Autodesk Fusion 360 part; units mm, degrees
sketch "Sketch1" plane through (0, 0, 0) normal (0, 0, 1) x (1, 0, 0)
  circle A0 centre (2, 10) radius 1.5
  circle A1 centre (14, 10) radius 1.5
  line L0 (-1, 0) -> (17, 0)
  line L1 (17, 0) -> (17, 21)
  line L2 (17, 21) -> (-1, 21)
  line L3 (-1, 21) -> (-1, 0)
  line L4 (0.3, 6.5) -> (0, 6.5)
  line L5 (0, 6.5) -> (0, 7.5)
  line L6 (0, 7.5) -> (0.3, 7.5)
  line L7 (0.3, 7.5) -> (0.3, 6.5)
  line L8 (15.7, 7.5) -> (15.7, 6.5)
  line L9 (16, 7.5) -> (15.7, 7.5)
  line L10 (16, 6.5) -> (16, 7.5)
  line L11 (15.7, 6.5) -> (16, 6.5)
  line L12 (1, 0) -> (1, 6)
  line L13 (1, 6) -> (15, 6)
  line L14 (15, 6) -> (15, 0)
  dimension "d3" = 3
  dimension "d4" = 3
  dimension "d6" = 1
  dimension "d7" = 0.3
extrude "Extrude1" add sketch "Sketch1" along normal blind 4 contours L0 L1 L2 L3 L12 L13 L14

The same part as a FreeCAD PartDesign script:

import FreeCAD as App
import Part
import Sketcher

doc = App.newDocument("Part")
params = doc.addObject("Spreadsheet::Sheet", "Params")
for row, (alias, value) in enumerate([
    ("sketch1_diameter", "3 mm"),
    ("sketch1_height", "1 mm"),
    ("sketch1_width", "0.3 mm"),
    ("sketch1_width2", "14 mm"),
    ("sketch1_height2", "21 mm"),
    ("pad1_length", "4 mm"),
], start=1):
    params.set(f"A{row}", alias)
    params.set(f"B{row}", "=" + value)
    params.setAlias(f"B{row}", alias)

body = doc.addObject("PartDesign::Body", "Body")

sketch1 = body.newObject("Sketcher::SketchObject", "Sketch")
sketch1.AttachmentSupport = (doc.getObject("XY_Plane"), [""])
sketch1.MapMode = "FlatFace"
sketch1.addGeometry([
    Part.LineSegment(App.Vector(-1, 21, 0), App.Vector(-1, 0, 0)),
    Part.LineSegment(App.Vector(-1, 0, 0), App.Vector(1, 0, 0)),
    Part.LineSegment(App.Vector(1, 0, 0), App.Vector(1, 6, 0)),
    Part.LineSegment(App.Vector(1, 6, 0), App.Vector(15, 6, 0)),
    Part.LineSegment(App.Vector(15, 6, 0), App.Vector(15, 0, 0)),
    Part.LineSegment(App.Vector(15, 0, 0), App.Vector(17, 0, 0)),
    Part.LineSegment(App.Vector(17, 0, 0), App.Vector(17, 21, 0)),
    Part.LineSegment(App.Vector(17, 21, 0), App.Vector(-1, 21, 0)),
    Part.LineSegment(App.Vector(0.3, 7.5, 0), App.Vector(0.3, 6.5, 0)),
    Part.LineSegment(App.Vector(0.3, 6.5, 0), App.Vector(0, 6.5, 0)),
    Part.LineSegment(App.Vector(0, 6.5, 0), App.Vector(0, 7.5, 0)),
    Part.LineSegment(App.Vector(0, 7.5, 0), App.Vector(0.3, 7.5, 0)),
    Part.Circle(App.Vector(2, 10, 0), App.Vector(0, 0, 1), 1.5),
    Part.LineSegment(App.Vector(15.7, 6.5, 0), App.Vector(15.7, 7.5, 0)),
    Part.LineSegment(App.Vector(15.7, 7.5, 0), App.Vector(16, 7.5, 0)),
    Part.LineSegment(App.Vector(16, 7.5, 0), App.Vector(16, 6.5, 0)),
    Part.LineSegment(App.Vector(16, 6.5, 0), App.Vector(15.7, 6.5, 0)),
    Part.Circle(App.Vector(14, 10, 0), App.Vector(0, 0, 1), 1.5),
], False)
sketch1.addConstraint([
    Sketcher.Constraint("Coincident", 0, 2, 1, 1),
    Sketcher.Constraint("Coincident", 1, 2, 2, 1),
    Sketcher.Constraint("Coincident", 2, 2, 3, 1),
    Sketcher.Constraint("Coincident", 3, 2, 4, 1),
    Sketcher.Constraint("Coincident", 4, 2, 5, 1),
    Sketcher.Constraint("Coincident", 5, 2, 6, 1),
    Sketcher.Constraint("Coincident", 6, 2, 7, 1),
    Sketcher.Constraint("Coincident", 7, 2, 0, 1),
    Sketcher.Constraint("Coincident", 8, 2, 9, 1),
    Sketcher.Constraint("Coincident", 9, 2, 10, 1),
    Sketcher.Constraint("Coincident", 10, 2, 11, 1),
    Sketcher.Constraint("Coincident", 11, 2, 8, 1),
    Sketcher.Constraint("Coincident", 13, 2, 14, 1),
    Sketcher.Constraint("Coincident", 14, 2, 15, 1),
    Sketcher.Constraint("Coincident", 15, 2, 16, 1),
    Sketcher.Constraint("Coincident", 16, 2, 13, 1),
    Sketcher.Constraint("Vertical", 0),
    Sketcher.Constraint("Horizontal", 1),
    Sketcher.Constraint("Vertical", 2),
    Sketcher.Constraint("Horizontal", 3),
    Sketcher.Constraint("Vertical", 4),
    Sketcher.Constraint("Horizontal", 5),
    Sketcher.Constraint("Vertical", 6),
    Sketcher.Constraint("Horizontal", 7),
    Sketcher.Constraint("Vertical", 8),
    Sketcher.Constraint("Horizontal", 9),
    Sketcher.Constraint("Vertical", 10),
    Sketcher.Constraint("Horizontal", 11),
    Sketcher.Constraint("Vertical", 13),
    Sketcher.Constraint("Horizontal", 14),
    Sketcher.Constraint("Vertical", 15),
    Sketcher.Constraint("Horizontal", 16),
    Sketcher.Constraint("Equal", 12, 17),
    Sketcher.Constraint("Symmetric", 0, 2, 1, 2, -1, 1),
    Sketcher.Constraint("PointOnObject", 4, 2, -1),
    Sketcher.Constraint("PointOnObject", 9, 2, -2),
    Sketcher.Constraint("Horizontal", 12, 3, 17, 3),
    Sketcher.Constraint("Horizontal", 11, 2, 13, 2),
    Sketcher.Constraint("Horizontal", 9, 2, 15, 2),
    Sketcher.Constraint("Equal", 1, 5),
    Sketcher.Constraint("Equal", 11, 14),
    Sketcher.Constraint("Diameter", 12, 3.0),
    Sketcher.Constraint("DistanceY", 8, 2, 8, 1, 1.0),
    Sketcher.Constraint("DistanceX", 9, 2, 9, 1, 0.3),
    Sketcher.Constraint("DistanceX", 0, 2, -1, 1, 1.0),
    Sketcher.Constraint("DistanceX", 0, 2, 12, 3, 3.0),
    Sketcher.Constraint("DistanceX", 17, 3, 3, 2, 1.0),
    Sketcher.Constraint("DistanceX", 3, 2, 14, 2, 1.0),
    Sketcher.Constraint("DistanceX", 3, 1, 3, 2, 14.0),
    Sketcher.Constraint("DistanceY", 0, 2, 0, 1, 21.0),
    Sketcher.Constraint("DistanceY", 2, 1, 2, 2, 6.0),
    Sketcher.Constraint("DistanceY", -1, 1, 12, 3, 10.0),
    Sketcher.Constraint("DistanceY", -1, 1, 8, 2, 6.5),
])
sketch1.setExpression("Constraints[41]", "Params.sketch1_diameter")
sketch1.setExpression("Constraints[42]", "Params.sketch1_height")
sketch1.setExpression("Constraints[43]", "Params.sketch1_width")
sketch1.setExpression("Constraints[48]", "Params.sketch1_width2")
sketch1.setExpression("Constraints[49]", "Params.sketch1_height2")
pad1 = body.newObject("PartDesign::Pad", "Pad")
pad1.Profile = sketch1
pad1.setExpression("Length", "Params.pad1_length")

doc.recompute()
